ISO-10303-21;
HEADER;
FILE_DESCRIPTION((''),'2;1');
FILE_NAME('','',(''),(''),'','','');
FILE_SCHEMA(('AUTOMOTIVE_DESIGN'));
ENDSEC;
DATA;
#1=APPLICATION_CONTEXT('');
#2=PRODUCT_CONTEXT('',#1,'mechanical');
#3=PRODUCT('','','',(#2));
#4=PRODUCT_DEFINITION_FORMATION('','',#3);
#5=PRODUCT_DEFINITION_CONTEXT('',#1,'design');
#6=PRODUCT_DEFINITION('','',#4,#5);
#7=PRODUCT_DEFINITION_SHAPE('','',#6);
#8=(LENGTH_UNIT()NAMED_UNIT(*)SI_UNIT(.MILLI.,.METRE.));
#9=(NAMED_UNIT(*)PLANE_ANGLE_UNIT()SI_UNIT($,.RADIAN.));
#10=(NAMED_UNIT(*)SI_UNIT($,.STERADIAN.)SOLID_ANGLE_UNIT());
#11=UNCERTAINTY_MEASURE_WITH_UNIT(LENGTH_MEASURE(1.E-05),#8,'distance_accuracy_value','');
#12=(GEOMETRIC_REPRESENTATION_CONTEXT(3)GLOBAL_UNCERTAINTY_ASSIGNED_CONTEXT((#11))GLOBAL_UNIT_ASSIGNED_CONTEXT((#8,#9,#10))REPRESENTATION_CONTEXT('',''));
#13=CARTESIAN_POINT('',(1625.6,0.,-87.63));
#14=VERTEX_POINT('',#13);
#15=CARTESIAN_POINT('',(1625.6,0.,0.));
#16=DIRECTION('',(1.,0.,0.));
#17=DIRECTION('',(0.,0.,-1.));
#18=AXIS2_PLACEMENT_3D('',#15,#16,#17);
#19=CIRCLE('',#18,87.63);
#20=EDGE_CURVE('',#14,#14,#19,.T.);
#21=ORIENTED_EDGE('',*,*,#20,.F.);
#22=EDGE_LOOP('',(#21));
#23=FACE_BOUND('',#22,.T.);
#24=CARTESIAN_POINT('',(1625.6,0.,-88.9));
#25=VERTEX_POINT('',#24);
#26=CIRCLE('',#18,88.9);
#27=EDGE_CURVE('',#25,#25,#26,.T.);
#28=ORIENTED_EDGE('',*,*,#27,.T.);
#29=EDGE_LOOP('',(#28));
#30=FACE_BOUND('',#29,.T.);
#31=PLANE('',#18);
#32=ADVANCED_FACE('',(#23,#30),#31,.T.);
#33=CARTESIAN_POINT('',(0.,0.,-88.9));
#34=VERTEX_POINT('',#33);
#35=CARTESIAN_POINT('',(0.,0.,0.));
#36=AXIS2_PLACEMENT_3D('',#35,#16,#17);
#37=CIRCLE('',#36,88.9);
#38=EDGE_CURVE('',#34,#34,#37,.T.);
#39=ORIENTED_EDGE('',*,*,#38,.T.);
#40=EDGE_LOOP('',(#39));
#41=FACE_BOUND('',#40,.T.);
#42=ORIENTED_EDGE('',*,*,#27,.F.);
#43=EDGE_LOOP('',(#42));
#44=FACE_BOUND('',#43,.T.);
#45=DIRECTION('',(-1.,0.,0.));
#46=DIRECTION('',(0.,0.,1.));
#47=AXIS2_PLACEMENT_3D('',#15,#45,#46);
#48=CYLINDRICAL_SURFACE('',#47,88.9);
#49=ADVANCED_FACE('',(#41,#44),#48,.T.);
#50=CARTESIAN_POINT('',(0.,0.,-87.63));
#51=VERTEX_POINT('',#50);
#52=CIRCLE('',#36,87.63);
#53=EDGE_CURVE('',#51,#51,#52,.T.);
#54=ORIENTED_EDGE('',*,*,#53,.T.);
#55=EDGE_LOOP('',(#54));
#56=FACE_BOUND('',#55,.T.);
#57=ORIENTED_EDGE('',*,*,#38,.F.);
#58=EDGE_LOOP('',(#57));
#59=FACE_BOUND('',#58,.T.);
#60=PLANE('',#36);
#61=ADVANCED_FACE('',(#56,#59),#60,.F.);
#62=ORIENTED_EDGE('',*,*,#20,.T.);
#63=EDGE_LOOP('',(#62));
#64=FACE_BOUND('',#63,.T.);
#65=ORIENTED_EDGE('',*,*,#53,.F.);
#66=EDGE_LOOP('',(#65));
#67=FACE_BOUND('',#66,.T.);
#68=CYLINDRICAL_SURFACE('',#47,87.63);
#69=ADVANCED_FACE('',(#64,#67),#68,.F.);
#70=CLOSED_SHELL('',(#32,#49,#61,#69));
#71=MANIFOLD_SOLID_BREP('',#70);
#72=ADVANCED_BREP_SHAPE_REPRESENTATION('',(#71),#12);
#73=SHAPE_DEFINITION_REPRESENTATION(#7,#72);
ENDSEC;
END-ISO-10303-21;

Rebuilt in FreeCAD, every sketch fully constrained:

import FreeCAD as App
import Part
import Sketcher
Q = App.Units.Quantity

doc = App.newDocument("Part")
body = doc.addObject("PartDesign::Body", "Body")

# Sketch on YZ plane
sketch1 = body.newObject("Sketcher::SketchObject", "Sketch")
sketch1.AttachmentSupport = (doc.getObject("YZ_Plane"), [""])
sketch1.MapMode = "FlatFace"
sketch1.addGeometry([
    Part.Circle(App.Vector(0, 0, 0), App.Vector(0, 0, 1), 89),
    Part.Circle(App.Vector(0, 0, 0), App.Vector(0, 0, 1), 88),
], False)
sketch1.addConstraint([
    Sketcher.Constraint("Coincident", 0, 3, -1, 1),
    Sketcher.Constraint("Coincident", 1, 3, -1, 1),
    Sketcher.Constraint("Diameter", 0, Q("7 in")),
    Sketcher.Constraint("Diameter", 1, Q("6.9 in")),
])
pad1 = body.newObject("PartDesign::Pad", "Pad")
pad1.Profile = sketch1
pad1.Length = Q("64 in")

doc.recompute()
